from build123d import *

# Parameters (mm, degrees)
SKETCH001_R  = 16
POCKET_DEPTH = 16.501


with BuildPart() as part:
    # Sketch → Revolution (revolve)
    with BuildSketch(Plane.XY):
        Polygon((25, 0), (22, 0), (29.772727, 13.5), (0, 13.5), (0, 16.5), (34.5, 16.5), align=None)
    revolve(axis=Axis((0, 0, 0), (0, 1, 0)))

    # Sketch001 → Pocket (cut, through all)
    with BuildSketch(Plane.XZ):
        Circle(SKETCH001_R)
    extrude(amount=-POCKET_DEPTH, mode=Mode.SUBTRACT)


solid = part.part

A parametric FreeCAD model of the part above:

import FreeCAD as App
import Part
import Sketcher


def add_polygon(sketch, points):
    """Adds a closed chain of lines whose ends are joined by coincident constraints."""
    first, n = sketch.GeometryCount, len(points)
    for a, b in zip(points, points[1:] + points[:1]):
        sketch.addGeometry(Part.LineSegment(App.Vector(*a, 0), App.Vector(*b, 0)), False)
    for i in range(n):
        sketch.addConstraint(Sketcher.Constraint("Coincident", first + i, 2, first + (i + 1) % n, 1))

doc = App.newDocument("Part")
body = doc.addObject("PartDesign::Body", "Body")

sketch1 = body.newObject("Sketcher::SketchObject", "Sketch")
sketch1.AttachmentSupport = (doc.getObject("XY_Plane"), [""])
sketch1.MapMode = "FlatFace"
add_polygon(sketch1, [(22, 0), (25, 0), (34.5, 16.5), (0, 16.5), (0, 13.5), (29.8, 13.5)])
sketch1.addConstraint(Sketcher.Constraint("Horizontal", 0))
sketch1.addConstraint(Sketcher.Constraint("Horizontal", 2))
sketch1.addConstraint(Sketcher.Constraint("Vertical", 3))
sketch1.addConstraint(Sketcher.Constraint("Horizontal", 4))
sketch1.addConstraint(Sketcher.Constraint("PointOnObject", 0, 2, -1))
sketch1.addConstraint(Sketcher.Constraint("PointOnObject", 2, 2, -2))
sketch1.addConstraint(Sketcher.Constraint("Parallel", 1, 5))
sketch1.addConstraint(Sketcher.Constraint("Equal", 0, 3))
sketch1.addConstraint(Sketcher.Constraint("DistanceX", 0, 1, 0, 2, 3.0))
sketch1.addConstraint(Sketcher.Constraint("DistanceX", 2, 2, 2, 1, 34.5))
sketch1.addConstraint(Sketcher.Constraint("DistanceX", -1, 1, 0, 2, 25.0))
sketch1.addConstraint(Sketcher.Constraint("DistanceY", -1, 1, 1, 2, 16.5))
revolution = body.newObject("PartDesign::Revolution", "Revolution")
revolution.Profile = sketch1
revolution.ReferenceAxis = (sketch1, ["V_Axis"])
revolution.Angle = 360

sketch2 = body.newObject("Sketcher::SketchObject", "Sketch001")
sketch2.AttachmentSupport = (doc.getObject("XZ_Plane"), [""])
sketch2.MapMode = "FlatFace"
sketch2.addGeometry(Part.Circle(App.Vector(0, 0, 0), App.Vector(0, 0, 1), 16), False)
sketch2.addConstraint(Sketcher.Constraint("Coincident", 0, 3, -1, 1))
sketch2.addConstraint(Sketcher.Constraint("Diameter", 0, 32.0))
pocket1 = body.newObject("PartDesign::Pocket", "Pocket")
pocket1.Profile = sketch2
pocket1.Type = "ThroughAll"

doc.recompute()
